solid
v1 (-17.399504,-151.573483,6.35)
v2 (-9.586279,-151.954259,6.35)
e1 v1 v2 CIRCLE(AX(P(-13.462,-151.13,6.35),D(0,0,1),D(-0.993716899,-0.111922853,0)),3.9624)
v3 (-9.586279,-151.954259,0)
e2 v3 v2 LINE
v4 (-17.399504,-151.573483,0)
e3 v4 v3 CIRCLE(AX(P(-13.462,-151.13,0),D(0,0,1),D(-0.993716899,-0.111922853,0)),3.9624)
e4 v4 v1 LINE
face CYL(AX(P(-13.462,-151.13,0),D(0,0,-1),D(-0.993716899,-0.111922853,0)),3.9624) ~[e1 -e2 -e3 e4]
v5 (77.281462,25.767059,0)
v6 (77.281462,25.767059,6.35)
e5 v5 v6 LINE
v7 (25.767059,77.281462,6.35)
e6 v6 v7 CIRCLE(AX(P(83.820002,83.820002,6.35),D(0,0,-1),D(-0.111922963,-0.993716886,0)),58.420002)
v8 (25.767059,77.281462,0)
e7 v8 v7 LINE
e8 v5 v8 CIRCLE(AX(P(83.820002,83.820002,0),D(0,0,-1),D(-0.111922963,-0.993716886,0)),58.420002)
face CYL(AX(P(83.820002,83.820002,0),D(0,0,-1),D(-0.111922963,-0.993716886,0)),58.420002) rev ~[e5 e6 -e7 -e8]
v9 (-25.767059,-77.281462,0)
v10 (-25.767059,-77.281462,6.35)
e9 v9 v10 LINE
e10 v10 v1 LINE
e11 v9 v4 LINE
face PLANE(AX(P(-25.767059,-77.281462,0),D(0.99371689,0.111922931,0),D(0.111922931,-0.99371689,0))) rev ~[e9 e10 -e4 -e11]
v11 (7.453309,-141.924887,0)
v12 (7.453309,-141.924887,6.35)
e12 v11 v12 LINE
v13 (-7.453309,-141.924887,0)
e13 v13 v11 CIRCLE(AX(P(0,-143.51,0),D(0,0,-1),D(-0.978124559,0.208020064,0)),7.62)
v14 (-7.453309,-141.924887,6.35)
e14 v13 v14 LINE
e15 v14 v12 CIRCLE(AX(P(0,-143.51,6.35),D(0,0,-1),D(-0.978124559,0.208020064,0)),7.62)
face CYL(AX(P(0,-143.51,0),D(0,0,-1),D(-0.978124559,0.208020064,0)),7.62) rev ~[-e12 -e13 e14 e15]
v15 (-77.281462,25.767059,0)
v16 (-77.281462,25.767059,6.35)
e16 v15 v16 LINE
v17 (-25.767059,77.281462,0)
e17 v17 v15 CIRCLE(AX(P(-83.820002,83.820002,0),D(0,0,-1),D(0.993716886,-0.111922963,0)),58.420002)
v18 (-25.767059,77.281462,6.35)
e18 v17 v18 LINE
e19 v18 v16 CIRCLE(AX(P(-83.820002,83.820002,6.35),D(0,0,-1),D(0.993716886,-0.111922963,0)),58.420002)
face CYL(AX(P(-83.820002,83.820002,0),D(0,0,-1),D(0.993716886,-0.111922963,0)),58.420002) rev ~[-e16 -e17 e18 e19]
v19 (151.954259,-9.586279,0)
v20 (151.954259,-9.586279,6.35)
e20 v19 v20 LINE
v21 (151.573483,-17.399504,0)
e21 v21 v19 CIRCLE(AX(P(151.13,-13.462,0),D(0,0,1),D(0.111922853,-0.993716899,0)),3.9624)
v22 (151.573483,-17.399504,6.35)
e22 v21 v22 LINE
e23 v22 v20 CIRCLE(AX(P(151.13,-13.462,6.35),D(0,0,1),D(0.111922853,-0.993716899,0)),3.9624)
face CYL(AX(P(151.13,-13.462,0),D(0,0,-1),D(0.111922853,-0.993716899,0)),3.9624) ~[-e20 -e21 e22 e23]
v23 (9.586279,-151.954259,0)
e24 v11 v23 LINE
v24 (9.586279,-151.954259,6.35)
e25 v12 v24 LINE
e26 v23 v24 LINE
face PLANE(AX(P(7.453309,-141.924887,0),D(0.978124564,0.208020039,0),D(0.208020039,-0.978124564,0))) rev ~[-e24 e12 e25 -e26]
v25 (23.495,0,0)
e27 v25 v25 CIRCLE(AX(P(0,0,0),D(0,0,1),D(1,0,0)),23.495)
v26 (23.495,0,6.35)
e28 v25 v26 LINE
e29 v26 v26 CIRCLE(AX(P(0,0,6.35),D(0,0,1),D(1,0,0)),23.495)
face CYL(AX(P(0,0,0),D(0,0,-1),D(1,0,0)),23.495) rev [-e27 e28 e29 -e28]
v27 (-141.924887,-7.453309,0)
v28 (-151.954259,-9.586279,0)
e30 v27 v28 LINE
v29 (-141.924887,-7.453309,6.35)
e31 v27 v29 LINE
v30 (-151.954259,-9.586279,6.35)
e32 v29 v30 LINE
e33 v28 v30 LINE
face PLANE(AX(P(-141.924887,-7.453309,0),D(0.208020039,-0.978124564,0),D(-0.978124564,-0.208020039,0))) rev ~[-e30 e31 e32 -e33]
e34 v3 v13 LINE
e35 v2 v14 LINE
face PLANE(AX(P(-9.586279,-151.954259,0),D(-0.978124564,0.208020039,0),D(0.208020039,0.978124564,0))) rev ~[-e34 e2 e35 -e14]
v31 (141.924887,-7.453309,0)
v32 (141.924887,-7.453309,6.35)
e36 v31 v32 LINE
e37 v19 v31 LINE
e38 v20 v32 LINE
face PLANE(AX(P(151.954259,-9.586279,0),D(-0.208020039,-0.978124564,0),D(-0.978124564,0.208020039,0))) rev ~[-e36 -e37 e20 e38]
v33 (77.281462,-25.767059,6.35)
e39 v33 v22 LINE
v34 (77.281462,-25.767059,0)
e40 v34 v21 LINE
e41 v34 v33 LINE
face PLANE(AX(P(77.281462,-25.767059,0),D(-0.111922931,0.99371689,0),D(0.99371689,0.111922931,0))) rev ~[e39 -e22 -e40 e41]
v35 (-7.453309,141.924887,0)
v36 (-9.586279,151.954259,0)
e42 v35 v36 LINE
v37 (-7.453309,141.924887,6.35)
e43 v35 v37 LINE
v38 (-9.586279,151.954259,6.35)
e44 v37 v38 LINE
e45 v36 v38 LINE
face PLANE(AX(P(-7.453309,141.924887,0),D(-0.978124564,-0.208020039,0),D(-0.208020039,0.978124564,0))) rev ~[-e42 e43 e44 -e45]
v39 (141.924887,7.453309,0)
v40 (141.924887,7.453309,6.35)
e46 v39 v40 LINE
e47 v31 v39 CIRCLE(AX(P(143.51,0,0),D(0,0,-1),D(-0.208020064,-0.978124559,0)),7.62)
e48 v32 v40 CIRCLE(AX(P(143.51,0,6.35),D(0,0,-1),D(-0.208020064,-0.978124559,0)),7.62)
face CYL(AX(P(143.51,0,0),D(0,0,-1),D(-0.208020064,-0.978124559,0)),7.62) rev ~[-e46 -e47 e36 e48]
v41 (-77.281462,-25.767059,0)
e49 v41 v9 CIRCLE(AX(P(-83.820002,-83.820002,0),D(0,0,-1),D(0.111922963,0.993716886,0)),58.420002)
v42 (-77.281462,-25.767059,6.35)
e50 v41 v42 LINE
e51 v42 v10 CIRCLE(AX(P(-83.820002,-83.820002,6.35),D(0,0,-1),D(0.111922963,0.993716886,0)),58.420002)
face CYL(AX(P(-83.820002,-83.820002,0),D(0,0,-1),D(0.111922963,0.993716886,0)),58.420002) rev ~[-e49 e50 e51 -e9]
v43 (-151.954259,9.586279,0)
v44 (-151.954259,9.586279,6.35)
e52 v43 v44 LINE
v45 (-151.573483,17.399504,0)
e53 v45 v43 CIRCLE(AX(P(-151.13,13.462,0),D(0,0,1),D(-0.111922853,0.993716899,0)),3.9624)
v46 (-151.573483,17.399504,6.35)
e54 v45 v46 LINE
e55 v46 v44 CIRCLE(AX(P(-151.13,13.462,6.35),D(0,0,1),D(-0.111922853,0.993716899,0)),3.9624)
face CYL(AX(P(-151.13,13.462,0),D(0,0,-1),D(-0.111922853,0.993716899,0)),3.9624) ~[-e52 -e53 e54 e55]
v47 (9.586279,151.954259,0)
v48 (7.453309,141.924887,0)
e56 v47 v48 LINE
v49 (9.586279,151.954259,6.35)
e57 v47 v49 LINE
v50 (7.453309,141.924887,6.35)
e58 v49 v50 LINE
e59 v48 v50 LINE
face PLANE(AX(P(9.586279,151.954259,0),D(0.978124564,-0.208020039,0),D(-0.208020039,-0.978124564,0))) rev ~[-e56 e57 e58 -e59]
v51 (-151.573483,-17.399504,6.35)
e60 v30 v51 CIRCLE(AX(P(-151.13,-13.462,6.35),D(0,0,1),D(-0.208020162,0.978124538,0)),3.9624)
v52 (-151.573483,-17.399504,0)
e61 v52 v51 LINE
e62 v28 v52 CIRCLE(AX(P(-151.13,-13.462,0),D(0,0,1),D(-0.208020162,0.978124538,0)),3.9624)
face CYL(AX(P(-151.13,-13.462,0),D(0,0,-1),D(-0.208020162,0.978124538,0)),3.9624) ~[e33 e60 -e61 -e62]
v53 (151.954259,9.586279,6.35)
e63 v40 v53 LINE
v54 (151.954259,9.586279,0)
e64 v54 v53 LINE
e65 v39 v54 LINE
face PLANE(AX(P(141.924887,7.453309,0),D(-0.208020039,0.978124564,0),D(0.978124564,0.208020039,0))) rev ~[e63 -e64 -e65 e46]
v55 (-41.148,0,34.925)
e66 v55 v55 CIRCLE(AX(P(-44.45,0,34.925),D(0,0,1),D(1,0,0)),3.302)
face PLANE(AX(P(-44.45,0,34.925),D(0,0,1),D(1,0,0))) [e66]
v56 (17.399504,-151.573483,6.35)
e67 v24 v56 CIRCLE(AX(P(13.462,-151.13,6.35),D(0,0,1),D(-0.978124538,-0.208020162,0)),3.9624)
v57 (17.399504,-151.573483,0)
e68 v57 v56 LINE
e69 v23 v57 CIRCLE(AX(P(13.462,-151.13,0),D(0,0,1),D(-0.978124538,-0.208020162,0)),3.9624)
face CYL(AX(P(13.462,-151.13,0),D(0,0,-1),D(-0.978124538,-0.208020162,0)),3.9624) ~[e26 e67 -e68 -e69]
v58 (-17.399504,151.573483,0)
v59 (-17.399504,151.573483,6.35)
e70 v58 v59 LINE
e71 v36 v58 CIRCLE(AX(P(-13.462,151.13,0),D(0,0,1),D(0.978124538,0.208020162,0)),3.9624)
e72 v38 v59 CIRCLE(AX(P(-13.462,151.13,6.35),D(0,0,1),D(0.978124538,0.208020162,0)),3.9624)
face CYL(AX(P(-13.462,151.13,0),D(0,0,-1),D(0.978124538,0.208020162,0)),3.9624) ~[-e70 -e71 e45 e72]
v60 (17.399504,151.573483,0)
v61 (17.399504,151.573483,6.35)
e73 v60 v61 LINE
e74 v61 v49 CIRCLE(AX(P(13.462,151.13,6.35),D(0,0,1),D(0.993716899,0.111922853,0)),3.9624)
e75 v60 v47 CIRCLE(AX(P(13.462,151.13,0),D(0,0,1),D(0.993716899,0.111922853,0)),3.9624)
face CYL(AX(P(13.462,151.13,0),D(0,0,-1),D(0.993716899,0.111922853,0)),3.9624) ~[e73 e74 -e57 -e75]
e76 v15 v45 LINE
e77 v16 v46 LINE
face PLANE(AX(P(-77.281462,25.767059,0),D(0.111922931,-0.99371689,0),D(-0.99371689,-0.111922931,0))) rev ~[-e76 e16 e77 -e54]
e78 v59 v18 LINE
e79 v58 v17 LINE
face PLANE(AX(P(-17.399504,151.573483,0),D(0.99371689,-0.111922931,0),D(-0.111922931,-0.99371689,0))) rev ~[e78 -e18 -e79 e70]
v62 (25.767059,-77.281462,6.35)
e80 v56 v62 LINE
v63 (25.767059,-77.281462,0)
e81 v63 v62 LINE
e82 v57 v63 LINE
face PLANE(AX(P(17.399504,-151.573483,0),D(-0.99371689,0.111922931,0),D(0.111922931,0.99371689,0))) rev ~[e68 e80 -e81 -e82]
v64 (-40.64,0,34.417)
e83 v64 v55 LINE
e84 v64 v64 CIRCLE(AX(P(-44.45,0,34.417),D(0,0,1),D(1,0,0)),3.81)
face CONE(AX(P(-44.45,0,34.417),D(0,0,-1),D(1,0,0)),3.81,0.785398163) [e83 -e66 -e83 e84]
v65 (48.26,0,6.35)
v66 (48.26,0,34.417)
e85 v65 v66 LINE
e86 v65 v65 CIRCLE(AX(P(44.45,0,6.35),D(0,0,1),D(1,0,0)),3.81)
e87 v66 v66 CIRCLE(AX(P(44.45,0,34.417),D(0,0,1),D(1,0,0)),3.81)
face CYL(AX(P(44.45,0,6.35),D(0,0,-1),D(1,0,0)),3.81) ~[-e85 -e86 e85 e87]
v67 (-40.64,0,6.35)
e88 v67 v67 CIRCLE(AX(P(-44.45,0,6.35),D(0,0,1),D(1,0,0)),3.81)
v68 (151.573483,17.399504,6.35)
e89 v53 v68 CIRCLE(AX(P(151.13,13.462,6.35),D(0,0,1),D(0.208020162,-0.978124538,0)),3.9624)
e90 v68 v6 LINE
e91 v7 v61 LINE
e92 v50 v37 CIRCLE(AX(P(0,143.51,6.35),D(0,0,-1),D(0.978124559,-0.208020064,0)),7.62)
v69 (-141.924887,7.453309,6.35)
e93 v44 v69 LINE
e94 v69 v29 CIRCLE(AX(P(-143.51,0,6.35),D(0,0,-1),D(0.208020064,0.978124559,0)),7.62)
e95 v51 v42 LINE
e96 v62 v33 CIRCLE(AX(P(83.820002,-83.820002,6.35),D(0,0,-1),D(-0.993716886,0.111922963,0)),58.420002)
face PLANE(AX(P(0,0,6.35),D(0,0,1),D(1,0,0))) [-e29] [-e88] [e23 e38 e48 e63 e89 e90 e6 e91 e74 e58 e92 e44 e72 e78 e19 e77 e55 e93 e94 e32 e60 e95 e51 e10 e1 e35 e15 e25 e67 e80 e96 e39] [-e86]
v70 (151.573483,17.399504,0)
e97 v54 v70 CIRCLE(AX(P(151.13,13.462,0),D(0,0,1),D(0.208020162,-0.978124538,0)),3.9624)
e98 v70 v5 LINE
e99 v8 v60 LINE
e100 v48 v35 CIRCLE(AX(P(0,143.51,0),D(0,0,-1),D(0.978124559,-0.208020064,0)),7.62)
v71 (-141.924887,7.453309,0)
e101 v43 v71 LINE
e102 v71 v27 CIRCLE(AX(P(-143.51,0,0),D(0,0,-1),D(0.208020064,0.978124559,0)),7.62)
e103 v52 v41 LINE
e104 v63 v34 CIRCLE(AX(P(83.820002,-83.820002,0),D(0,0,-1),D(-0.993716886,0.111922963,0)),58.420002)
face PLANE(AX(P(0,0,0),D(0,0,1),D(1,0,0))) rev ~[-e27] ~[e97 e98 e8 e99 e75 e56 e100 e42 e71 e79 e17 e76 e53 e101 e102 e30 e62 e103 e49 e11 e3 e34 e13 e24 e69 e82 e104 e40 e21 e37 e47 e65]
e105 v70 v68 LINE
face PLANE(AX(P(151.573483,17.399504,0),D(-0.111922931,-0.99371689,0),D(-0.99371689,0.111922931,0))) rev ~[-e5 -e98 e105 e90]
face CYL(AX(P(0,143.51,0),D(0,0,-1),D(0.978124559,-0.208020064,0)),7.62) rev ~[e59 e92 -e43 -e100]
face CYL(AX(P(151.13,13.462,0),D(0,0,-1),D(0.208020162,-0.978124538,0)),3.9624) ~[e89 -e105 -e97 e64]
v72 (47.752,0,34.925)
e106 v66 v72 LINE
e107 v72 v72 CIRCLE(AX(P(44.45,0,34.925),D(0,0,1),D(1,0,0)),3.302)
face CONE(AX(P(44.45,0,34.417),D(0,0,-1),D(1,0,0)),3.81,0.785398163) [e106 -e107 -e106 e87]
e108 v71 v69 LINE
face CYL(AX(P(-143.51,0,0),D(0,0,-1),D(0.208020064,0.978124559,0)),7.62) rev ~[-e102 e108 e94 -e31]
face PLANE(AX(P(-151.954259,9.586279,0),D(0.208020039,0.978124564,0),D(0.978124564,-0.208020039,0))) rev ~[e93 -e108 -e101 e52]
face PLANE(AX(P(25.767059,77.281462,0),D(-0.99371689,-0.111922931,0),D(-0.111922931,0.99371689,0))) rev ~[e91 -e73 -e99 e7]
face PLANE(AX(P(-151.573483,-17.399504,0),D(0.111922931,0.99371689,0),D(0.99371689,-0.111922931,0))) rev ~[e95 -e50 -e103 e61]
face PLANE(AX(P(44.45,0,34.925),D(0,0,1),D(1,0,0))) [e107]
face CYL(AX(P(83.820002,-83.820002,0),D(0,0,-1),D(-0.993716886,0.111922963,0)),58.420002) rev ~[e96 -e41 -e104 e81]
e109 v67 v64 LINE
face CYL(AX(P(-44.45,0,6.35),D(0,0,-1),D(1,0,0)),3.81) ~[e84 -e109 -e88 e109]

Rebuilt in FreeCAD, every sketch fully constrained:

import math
import FreeCAD as App
import Part
import Sketcher
from FreeCAD import Vector
Q = App.Units.Quantity


def edges_at(feature, points):
    """Names of the edges that pass closest to the given points."""
    edges = feature.Shape.Edges
    near = lambda p: min(range(len(edges)), key=lambda i: edges[i].distToShape(Part.Vertex(*p))[0])
    return sorted({f"Edge{near(p) + 1}" for p in points})

doc = App.newDocument("Part")
body = doc.addObject("PartDesign::Body", "Body")

# Sketch on XY plane
sketch1 = doc.addObject("Sketcher::SketchObject", "Sketch")
body.addObject(sketch1)
sketch1.AttachmentSupport = (doc.XY_Plane, [""])
sketch1.MapMode = "FlatFace"
sketch1.addGeometry([
    Part.ArcOfCircle(Part.Circle(Vector(-143.5, 0, 0), Vector(0, 0, 1), 7.6), math.radians(-78), math.radians(78)),  # 0
    Part.LineSegment(Vector(-141.9, -7.5, 0), Vector(-152, -9.6, 0)),  # 1
    Part.ArcOfCircle(Part.Circle(Vector(-151.1, -13.5, 0), Vector(0, 0, 1), 4), math.radians(102), math.radians(264)),  # 2
    Part.LineSegment(Vector(-151.6, -17.4, 0), Vector(-77.3, -25.8, 0)),  # 3
    Part.ArcOfCircle(Part.Circle(Vector(-83.8, -83.8, 0), Vector(0, 0, 1), 58.4), math.radians(6), math.radians(84)),  # 4
    Part.LineSegment(Vector(-25.8, -77.3, 0), Vector(-17.4, -151.6, 0)),  # 5
    Part.ArcOfCircle(Part.Circle(Vector(-13.5, -151.1, 0), Vector(0, 0, 1), 4), math.radians(-174), math.radians(-12)),  # 6
    Part.LineSegment(Vector(-9.6, -152, 0), Vector(-7.5, -141.9, 0)),  # 7
    Part.ArcOfCircle(Part.Circle(Vector(0, -143.5, 0), Vector(0, 0, 1), 7.6), math.radians(12), math.radians(168)),  # 8
    Part.LineSegment(Vector(7.5, -141.9, 0), Vector(9.6, -152, 0)),  # 9
    Part.ArcOfCircle(Part.Circle(Vector(13.5, -151.1, 0), Vector(0, 0, 1), 4), math.radians(-168), math.radians(-6)),  # 10
    Part.LineSegment(Vector(17.4, -151.6, 0), Vector(25.8, -77.3, 0)),  # 11
    Part.ArcOfCircle(Part.Circle(Vector(83.8, -83.8, 0), Vector(0, 0, 1), 58.4), math.radians(96), math.radians(174)),  # 12
    Part.LineSegment(Vector(77.3, -25.8, 0), Vector(151.6, -17.4, 0)),  # 13
    Part.ArcOfCircle(Part.Circle(Vector(151.1, -13.5, 0), Vector(0, 0, 1), 4), math.radians(-84), math.radians(78)),  # 14
    Part.LineSegment(Vector(152, -9.6, 0), Vector(141.9, -7.5, 0)),  # 15
    Part.ArcOfCircle(Part.Circle(Vector(143.5, 0, 0), Vector(0, 0, 1), 7.6), math.radians(102), math.radians(258)),  # 16
    Part.LineSegment(Vector(141.9, 7.5, 0), Vector(152, 9.6, 0)),  # 17
    Part.ArcOfCircle(Part.Circle(Vector(151.1, 13.5, 0), Vector(0, 0, 1), 4), math.radians(-78), math.radians(84)),  # 18
    Part.LineSegment(Vector(151.6, 17.4, 0), Vector(77.3, 25.8, 0)),  # 19
    Part.ArcOfCircle(Part.Circle(Vector(83.8, 83.8, 0), Vector(0, 0, 1), 58.4), math.radians(-174), math.radians(-96)),  # 20
    Part.LineSegment(Vector(25.8, 77.3, 0), Vector(17.4, 151.6, 0)),  # 21
    Part.ArcOfCircle(Part.Circle(Vector(13.5, 151.1, 0), Vector(0, 0, 1), 4), math.radians(6), math.radians(168)),  # 22
    Part.LineSegment(Vector(9.6, 152, 0), Vector(7.5, 141.9, 0)),  # 23
    Part.ArcOfCircle(Part.Circle(Vector(0, 143.5, 0), Vector(0, 0, 1), 7.6), math.radians(-168), math.radians(-12)),  # 24
    Part.LineSegment(Vector(-7.5, 141.9, 0), Vector(-9.6, 152, 0)),  # 25
    Part.ArcOfCircle(Part.Circle(Vector(-13.5, 151.1, 0), Vector(0, 0, 1), 4), math.radians(12), math.radians(174)),  # 26
    Part.LineSegment(Vector(-17.4, 151.6, 0), Vector(-25.8, 77.3, 0)),  # 27
    Part.ArcOfCircle(Part.Circle(Vector(-83.8, 83.8, 0), Vector(0, 0, 1), 58.4), math.radians(-84), math.radians(-6)),  # 28
    Part.LineSegment(Vector(-77.3, 25.8, 0), Vector(-151.6, 17.4, 0)),  # 29
    Part.ArcOfCircle(Part.Circle(Vector(-151.1, 13.5, 0), Vector(0, 0, 1), 4), math.radians(96), math.radians(258)),  # 30
    Part.LineSegment(Vector(-152, 9.6, 0), Vector(-141.9, 7.5, 0)),  # 31
    Part.Circle(Vector(0, 0, 0), Vector(0, 0, 1), 23.5),  # 32
], False)
sketch1.addConstraint([
    Sketcher.Constraint("Tangent", 0, 1, 1, 1),
    Sketcher.Constraint("Tangent", 1, 2, 2, 1),
    Sketcher.Constraint("Tangent", 2, 2, 3, 1),
    Sketcher.Constraint("Tangent", 3, 2, 4, 2),
    Sketcher.Constraint("Tangent", 4, 1, 5, 1),
    Sketcher.Constraint("Tangent", 5, 2, 6, 1),
    Sketcher.Constraint("Tangent", 6, 2, 7, 1),
    Sketcher.Constraint("Tangent", 7, 2, 8, 2),
    Sketcher.Constraint("Tangent", 8, 1, 9, 1),
    Sketcher.Constraint("Tangent", 9, 2, 10, 1),
    Sketcher.Constraint("Tangent", 10, 2, 11, 1),
    Sketcher.Constraint("Tangent", 11, 2, 12, 2),
    Sketcher.Constraint("Tangent", 12, 1, 13, 1),
    Sketcher.Constraint("Tangent", 13, 2, 14, 1),
    Sketcher.Constraint("Tangent", 14, 2, 15, 1),
    Sketcher.Constraint("Tangent", 15, 2, 16, 2),
    Sketcher.Constraint("Tangent", 16, 1, 17, 1),
    Sketcher.Constraint("Tangent", 17, 2, 18, 1),
    Sketcher.Constraint("Tangent", 18, 2, 19, 1),
    Sketcher.Constraint("Tangent", 19, 2, 20, 2),
    Sketcher.Constraint("Tangent", 20, 1, 21, 1),
    Sketcher.Constraint("Tangent", 21, 2, 22, 1),
    Sketcher.Constraint("Tangent", 22, 2, 23, 1),
    Sketcher.Constraint("Tangent", 23, 2, 24, 2),
    Sketcher.Constraint("Tangent", 24, 1, 25, 1),
    Sketcher.Constraint("Tangent", 25, 2, 26, 1),
    Sketcher.Constraint("Tangent", 26, 2, 27, 1),
    Sketcher.Constraint("Tangent", 27, 2, 28, 2),
    Sketcher.Constraint("Tangent", 28, 1, 29, 1),
    Sketcher.Constraint("Tangent", 29, 2, 30, 1),
    Sketcher.Constraint("Tangent", 30, 2, 31, 1),
    Sketcher.Constraint("Tangent", 31, 2, 0, 2),
    Sketcher.Constraint("Coincident", 32, 3, -1, 1),
    Sketcher.Constraint("Equal", 2, 6),
    Sketcher.Constraint("Equal", 0, 8),
    Sketcher.Constraint("Equal", 6, 10),
    Sketcher.Constraint("Equal", 4, 12),
    Sketcher.Constraint("Equal", 10, 14),
    Sketcher.Constraint("Equal", 8, 16),
    Sketcher.Constraint("Equal", 14, 18),
    Sketcher.Constraint("Equal", 12, 20),
    Sketcher.Constraint("Equal", 18, 22),
    Sketcher.Constraint("Equal", 16, 24),
    Sketcher.Constraint("Equal", 22, 26),
    Sketcher.Constraint("Equal", 20, 28),
    Sketcher.Constraint("Equal", 26, 30),
    Sketcher.Constraint("Symmetric", 0, 3, 16, 3, -1, 1),
    Sketcher.Constraint("Symmetric", 2, 3, 18, 3, -1, 1),
    Sketcher.Constraint("Symmetric", 4, 3, 20, 3, -1, 1),
    Sketcher.Constraint("Symmetric", 6, 3, 22, 3, -1, 1),
    Sketcher.Constraint("Symmetric", 8, 3, 24, 3, -1, 1),
    Sketcher.Constraint("Symmetric", 10, 3, 26, 3, -1, 1),
    Sketcher.Constraint("Symmetric", 12, 3, 28, 3, -1, 1),
    Sketcher.Constraint("Symmetric", 14, 3, 30, 3, -1, 1),
    Sketcher.Constraint("Symmetric", 6, 3, 10, 3, -2),
    Sketcher.Constraint("Symmetric", 4, 3, 12, 3, -2),
    Sketcher.Constraint("Symmetric", 2, 3, 14, 3, -2),
    Sketcher.Constraint("PointOnObject", 0, 3, -1),
    Sketcher.Constraint("PointOnObject", 8, 3, -2),
    Sketcher.Constraint("Perpendicular", 1, 9),
    Sketcher.Constraint("Perpendicular", 3, 11),
    Sketcher.Constraint("Equal", 3, 5),
    Sketcher.Constraint("Equal", 1, 7),
    Sketcher.Constraint("Radius", 0, Q("0.3 in")),
    Sketcher.Constraint("Radius", 4, Q("2.3000001 in")),
    Sketcher.Constraint("Diameter", 32, Q("1.85 in")),
    Sketcher.Constraint("Radius", 2, Q("0.156 in")),
    Sketcher.Constraint("DistanceX", 4, 3, -1, 1, Q("3.3000001 in")),
    Sketcher.Constraint("DistanceX", 2, 3, 0, 3, Q("0.3 in")),
    Sketcher.Constraint("DistanceX", 0, 3, -1, 1, Q("5.65 in")),
    Sketcher.Constraint("DistanceY", 2, 3, -1, 1, Q("0.53 in")),
])
pad1 = doc.addObject("PartDesign::Pad", "Pad")
body.addObject(pad1)
pad1.Profile = sketch1
pad1.Length = Q("0.25 in")

# Sketch on XY plane
sketch2 = doc.addObject("Sketcher::SketchObject", "Sketch001")
body.addObject(sketch2)
sketch2.AttachmentSupport = (doc.XY_Plane, [""])
sketch2.MapMode = "FlatFace"
sketch2.AttachmentOffset = App.Placement(Vector(0, 0, 0.25 * 25.4), App.Rotation())
sketch2.addGeometry([
    Part.Circle(Vector(-44.5, 0, 0), Vector(0, 0, 1), 3.8),
    Part.Circle(Vector(44.5, 0, 0), Vector(0, 0, 1), 3.8),
], False)
sketch2.addConstraint([
    Sketcher.Constraint("Equal", 0, 1),
    Sketcher.Constraint("Symmetric", 0, 3, 1, 3, -1, 1),
    Sketcher.Constraint("PointOnObject", 0, 3, -1),
    Sketcher.Constraint("Diameter", 0, Q("0.3 in")),
    Sketcher.Constraint("DistanceX", 0, 3, 1, 3, Q("3.5 in")),
])
pad2 = doc.addObject("PartDesign::Pad", "Pad001")
body.addObject(pad2)
pad2.Profile = sketch2
pad2.Length = Q("1.125 in")
doc.recompute()

chamfer = doc.addObject("PartDesign::Chamfer", "Chamfer")
body.addObject(chamfer)
chamfer.Base = (pad2, edges_at(pad2, [(-48.26, 0, 34.925), (40.64, 0, 34.925)]))
chamfer.Size = Q("0.02 in")

doc.recompute()
